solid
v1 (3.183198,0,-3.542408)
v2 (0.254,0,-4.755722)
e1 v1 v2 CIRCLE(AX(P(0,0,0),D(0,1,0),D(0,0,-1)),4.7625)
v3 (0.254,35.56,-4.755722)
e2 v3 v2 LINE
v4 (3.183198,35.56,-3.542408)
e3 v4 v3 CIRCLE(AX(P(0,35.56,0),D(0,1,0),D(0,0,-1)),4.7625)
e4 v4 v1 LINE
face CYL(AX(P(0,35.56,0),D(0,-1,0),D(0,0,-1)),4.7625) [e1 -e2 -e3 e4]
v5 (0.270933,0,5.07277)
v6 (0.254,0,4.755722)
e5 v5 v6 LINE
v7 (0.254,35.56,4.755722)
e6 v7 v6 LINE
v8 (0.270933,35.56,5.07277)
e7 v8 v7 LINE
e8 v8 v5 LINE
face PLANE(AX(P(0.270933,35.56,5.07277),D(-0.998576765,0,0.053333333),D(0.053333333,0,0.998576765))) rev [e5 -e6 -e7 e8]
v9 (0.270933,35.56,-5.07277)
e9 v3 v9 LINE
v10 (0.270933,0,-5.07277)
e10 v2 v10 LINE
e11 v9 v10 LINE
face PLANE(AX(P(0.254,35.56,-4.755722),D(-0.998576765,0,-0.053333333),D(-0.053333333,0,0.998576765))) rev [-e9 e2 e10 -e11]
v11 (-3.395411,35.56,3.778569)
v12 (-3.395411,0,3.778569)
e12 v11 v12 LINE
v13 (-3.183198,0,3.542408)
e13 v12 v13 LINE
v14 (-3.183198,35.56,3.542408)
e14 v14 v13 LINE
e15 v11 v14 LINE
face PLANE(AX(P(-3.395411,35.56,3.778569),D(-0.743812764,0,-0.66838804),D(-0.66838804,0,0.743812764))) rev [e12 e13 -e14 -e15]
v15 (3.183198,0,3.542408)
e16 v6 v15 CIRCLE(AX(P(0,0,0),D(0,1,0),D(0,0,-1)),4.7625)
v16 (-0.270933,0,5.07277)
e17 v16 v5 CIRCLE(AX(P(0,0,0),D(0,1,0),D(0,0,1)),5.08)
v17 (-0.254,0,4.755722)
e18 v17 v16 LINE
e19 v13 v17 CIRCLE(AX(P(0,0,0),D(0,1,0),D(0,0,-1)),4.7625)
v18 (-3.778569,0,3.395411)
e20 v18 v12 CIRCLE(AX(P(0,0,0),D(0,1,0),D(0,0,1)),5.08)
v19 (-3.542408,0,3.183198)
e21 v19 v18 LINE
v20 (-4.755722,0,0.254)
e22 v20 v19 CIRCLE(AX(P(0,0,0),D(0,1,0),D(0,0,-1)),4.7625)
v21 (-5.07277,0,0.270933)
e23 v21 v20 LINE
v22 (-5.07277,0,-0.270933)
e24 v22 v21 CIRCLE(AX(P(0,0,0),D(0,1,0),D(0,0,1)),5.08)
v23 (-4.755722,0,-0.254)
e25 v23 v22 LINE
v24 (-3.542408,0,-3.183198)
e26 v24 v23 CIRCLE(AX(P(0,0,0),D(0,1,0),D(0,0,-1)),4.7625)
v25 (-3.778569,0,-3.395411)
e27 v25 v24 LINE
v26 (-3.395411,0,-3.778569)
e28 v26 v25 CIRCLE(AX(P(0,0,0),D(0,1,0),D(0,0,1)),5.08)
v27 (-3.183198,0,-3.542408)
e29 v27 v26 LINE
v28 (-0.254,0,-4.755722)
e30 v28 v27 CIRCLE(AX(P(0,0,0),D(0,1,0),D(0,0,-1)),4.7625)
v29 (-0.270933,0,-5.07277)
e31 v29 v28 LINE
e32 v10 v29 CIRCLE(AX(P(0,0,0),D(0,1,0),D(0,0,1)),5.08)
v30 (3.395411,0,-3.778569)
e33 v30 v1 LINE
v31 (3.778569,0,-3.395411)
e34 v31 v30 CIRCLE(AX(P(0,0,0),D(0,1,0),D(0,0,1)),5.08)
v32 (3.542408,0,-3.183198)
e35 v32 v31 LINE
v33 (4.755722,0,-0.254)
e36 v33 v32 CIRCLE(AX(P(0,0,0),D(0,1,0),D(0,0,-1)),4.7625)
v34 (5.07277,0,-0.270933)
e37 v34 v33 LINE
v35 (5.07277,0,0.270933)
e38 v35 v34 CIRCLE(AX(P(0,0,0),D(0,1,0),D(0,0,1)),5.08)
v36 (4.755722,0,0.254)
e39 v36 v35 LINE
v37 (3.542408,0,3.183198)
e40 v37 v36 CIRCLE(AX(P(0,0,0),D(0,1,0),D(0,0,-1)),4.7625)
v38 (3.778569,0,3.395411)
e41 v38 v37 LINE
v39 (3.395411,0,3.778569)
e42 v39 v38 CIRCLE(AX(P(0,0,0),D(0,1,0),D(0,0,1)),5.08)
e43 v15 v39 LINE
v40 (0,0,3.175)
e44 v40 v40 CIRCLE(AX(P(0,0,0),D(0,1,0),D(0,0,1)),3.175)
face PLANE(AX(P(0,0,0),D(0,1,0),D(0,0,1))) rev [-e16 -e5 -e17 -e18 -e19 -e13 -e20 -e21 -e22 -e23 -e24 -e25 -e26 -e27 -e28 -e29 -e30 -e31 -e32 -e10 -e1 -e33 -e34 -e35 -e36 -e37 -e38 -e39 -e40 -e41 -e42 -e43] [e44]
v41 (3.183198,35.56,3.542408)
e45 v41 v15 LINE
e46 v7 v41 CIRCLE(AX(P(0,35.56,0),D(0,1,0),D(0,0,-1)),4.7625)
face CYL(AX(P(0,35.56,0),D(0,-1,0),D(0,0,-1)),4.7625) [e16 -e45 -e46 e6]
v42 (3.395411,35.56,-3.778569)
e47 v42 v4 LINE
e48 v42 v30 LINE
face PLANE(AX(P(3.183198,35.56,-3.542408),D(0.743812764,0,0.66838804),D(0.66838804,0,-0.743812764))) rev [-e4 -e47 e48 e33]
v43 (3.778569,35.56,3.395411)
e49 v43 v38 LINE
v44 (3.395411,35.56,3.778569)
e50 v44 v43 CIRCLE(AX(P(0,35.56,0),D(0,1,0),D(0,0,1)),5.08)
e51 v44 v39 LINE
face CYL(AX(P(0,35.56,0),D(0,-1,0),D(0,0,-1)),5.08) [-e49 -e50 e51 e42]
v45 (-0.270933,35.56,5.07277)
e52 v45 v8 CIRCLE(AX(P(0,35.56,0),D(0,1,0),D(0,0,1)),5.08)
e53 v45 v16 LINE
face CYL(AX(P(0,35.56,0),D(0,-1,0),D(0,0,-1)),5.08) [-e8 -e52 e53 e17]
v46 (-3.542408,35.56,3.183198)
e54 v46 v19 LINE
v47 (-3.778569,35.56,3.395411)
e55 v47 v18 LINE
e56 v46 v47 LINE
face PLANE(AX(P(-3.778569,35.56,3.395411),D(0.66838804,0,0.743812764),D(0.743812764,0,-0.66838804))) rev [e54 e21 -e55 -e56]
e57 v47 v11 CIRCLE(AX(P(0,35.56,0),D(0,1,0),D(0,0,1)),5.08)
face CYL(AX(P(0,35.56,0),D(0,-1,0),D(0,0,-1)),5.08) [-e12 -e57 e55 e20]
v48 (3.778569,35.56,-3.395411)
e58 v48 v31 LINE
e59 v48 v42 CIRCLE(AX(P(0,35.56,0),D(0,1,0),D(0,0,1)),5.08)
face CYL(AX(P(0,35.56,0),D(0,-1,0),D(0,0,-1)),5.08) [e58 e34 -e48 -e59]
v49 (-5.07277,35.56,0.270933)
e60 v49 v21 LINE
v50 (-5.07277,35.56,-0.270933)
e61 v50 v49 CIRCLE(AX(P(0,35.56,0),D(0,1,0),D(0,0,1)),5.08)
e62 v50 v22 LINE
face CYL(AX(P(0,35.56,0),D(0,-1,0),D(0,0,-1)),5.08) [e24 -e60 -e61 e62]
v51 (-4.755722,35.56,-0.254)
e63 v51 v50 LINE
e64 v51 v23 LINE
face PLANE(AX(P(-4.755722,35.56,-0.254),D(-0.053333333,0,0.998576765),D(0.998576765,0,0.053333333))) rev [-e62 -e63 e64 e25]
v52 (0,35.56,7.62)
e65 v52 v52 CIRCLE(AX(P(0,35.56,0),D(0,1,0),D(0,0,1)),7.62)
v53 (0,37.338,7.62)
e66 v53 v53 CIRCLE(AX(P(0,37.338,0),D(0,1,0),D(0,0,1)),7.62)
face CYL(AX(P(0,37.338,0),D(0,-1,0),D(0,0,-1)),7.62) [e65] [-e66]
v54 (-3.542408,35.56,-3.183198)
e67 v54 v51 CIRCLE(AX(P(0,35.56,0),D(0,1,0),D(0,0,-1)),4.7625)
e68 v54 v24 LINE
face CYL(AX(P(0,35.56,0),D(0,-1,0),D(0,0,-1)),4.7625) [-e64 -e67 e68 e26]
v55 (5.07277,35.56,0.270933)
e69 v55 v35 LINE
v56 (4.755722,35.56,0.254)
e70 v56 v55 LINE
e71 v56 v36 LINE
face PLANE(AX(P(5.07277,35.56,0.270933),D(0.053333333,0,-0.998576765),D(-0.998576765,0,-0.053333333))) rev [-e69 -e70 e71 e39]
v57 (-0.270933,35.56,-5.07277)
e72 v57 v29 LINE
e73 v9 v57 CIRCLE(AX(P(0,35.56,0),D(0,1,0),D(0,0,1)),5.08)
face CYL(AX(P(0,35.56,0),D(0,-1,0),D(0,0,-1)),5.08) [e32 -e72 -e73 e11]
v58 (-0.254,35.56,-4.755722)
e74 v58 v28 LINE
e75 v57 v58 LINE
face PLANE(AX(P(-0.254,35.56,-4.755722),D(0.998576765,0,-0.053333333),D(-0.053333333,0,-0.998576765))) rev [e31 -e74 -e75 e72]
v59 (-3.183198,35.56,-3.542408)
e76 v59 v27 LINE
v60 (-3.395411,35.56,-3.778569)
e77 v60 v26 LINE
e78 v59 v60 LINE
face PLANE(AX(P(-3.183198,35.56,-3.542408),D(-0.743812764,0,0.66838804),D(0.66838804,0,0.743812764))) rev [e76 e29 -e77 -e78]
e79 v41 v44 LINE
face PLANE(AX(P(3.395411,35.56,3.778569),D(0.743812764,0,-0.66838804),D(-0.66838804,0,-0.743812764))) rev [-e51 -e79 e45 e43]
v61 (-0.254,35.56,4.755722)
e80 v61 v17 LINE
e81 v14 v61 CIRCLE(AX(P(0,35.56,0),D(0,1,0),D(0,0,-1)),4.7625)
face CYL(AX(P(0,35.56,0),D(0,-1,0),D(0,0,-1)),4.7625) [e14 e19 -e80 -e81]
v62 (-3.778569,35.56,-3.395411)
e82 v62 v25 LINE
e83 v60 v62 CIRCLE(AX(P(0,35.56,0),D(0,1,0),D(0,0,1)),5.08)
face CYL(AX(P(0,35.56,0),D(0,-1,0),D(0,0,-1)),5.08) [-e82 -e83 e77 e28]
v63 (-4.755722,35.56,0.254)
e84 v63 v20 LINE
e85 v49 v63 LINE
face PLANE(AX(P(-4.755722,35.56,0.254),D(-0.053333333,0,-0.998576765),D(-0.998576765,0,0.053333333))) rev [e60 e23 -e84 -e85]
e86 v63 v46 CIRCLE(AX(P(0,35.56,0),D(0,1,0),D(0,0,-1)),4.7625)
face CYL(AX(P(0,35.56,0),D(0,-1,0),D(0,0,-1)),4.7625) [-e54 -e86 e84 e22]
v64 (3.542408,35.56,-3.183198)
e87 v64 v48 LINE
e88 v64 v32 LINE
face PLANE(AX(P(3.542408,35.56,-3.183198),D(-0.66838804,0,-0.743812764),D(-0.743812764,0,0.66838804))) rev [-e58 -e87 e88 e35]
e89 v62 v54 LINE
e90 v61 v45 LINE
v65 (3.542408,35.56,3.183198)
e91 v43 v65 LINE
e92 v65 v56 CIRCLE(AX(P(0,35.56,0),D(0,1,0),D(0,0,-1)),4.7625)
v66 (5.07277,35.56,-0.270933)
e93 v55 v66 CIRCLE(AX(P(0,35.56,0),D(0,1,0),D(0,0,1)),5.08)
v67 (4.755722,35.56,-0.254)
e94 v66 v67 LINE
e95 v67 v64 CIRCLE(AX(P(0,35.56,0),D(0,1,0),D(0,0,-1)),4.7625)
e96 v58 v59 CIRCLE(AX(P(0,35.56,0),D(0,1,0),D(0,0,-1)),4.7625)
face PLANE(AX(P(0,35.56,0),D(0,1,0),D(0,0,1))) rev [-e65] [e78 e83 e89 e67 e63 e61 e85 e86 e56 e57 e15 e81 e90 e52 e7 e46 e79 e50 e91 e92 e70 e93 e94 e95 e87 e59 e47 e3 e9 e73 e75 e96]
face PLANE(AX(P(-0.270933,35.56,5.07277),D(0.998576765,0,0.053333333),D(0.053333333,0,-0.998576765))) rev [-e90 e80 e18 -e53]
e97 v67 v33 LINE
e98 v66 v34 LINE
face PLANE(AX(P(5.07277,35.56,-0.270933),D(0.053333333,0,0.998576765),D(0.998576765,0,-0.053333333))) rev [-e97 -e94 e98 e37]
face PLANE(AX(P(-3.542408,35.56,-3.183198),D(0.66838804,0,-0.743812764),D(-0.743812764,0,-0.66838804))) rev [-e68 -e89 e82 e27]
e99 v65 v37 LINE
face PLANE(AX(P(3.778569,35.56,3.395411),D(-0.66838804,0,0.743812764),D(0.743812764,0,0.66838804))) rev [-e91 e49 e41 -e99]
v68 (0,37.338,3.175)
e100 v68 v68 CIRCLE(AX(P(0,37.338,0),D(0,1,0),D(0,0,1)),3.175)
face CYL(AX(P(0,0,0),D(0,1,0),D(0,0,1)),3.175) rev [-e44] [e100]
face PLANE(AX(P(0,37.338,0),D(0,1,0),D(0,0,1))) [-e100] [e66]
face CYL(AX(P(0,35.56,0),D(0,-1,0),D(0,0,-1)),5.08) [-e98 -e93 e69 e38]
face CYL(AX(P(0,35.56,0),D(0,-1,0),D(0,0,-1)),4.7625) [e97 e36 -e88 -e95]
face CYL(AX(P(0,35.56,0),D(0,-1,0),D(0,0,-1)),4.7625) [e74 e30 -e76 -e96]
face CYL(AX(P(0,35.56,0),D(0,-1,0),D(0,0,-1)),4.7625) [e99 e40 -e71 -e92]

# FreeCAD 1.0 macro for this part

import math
import FreeCAD as App
import Part
import Sketcher

V = App.Vector
Q = App.Units.Quantity

doc = App.newDocument("Part")
body = doc.addObject("PartDesign::Body", "Body")

sketch1 = body.newObject("Sketcher::SketchObject", "Sketch")
sketch1.AttachmentSupport = (doc.getObject("XZ_Plane"), [""])
sketch1.MapMode = "FlatFace"
sketch1.addGeometry(Part.Circle(V(0, 0, 0), V(0, 0, 1), 5.08), False)
sketch1.addConstraint(Sketcher.Constraint("Coincident", 0, 3, -1, 1))
sketch1.addConstraint(Sketcher.Constraint("Diameter", 0, Q("0.4 in")))
pad1 = body.newObject("PartDesign::Pad", "Pad")
pad1.Profile = sketch1
pad1.Length = Q("1.4 in")
pad1.Reversed = True

sketch2 = body.newObject("Sketcher::SketchObject", "Sketch001")
sketch2.AttachmentSupport = (doc.getObject("XZ_Plane"), [""])
sketch2.MapMode = "FlatFace"
sketch2.AttachmentOffset = App.Placement(V(0, 0, -1.4 * 25.4), App.Rotation())
sketch2.addGeometry(Part.Circle(V(0, 0, 0), V(0, 0, 1), 7.62), False)
sketch2.addConstraint(Sketcher.Constraint("Coincident", 0, 3, -1, 1))
sketch2.addConstraint(Sketcher.Constraint("Diameter", 0, Q("0.6 in")))
pad2 = body.newObject("PartDesign::Pad", "Pad001")
pad2.Profile = sketch2
pad2.Length = Q("0.07 in")
pad2.Reversed = True

sketch3 = body.newObject("Sketcher::SketchObject", "Sketch002")
sketch3.AttachmentSupport = (doc.getObject("XZ_Plane"), [""])
sketch3.MapMode = "FlatFace"
sketch3.AttachmentOffset = App.Placement(V(0, 0, -1.47 * 25.4), App.Rotation())
sketch3.addGeometry(Part.Circle(V(0, 0, 0), V(0, 0, 1), 3.175), False)
sketch3.addConstraint(Sketcher.Constraint("Coincident", 0, 3, -1, 1))
sketch3.addConstraint(Sketcher.Constraint("Diameter", 0, Q("0.25 in")))
pocket1 = body.newObject("PartDesign::Pocket", "Pocket")
pocket1.Profile = sketch3
pocket1.Type = "ThroughAll"
pocket1.Reversed = True

sketch4 = body.newObject("Sketcher::SketchObject", "Sketch003")
sketch4.AttachmentSupport = (doc.getObject("XZ_Plane"), [""])
sketch4.MapMode = "FlatFace"
sketch4.addGeometry(Part.LineSegment(V(-3.542408, 3.183198, 0), V(-3.778569, 3.395411, 0)), False)
sketch4.addGeometry(Part.ArcOfCircle(Part.Circle(V(0, 0, 0), V(0, 0, 1), 5.08), math.radians(138.057225), math.radians(176.942775)), False)
sketch4.addGeometry(Part.LineSegment(V(-5.07277, 0.270933, 0), V(-4.755722, 0.254, 0)), False)
sketch4.addGeometry(Part.ArcOfCircle(Part.Circle(V(0, 0, 0), V(0, 0, 1), 4.7625), math.radians(138.057225), math.radians(176.942775)), False)
sketch4.addGeometry(Part.LineSegment(V(-0.254, 4.755722, 0), V(-0.270933, 5.07277, 0)), False)
sketch4.addGeometry(Part.ArcOfCircle(Part.Circle(V(0, 0, 0), V(0, 0, 1), 5.08), math.radians(93.057225), math.radians(131.942775)), False)
sketch4.addGeometry(Part.LineSegment(V(-3.395411, 3.778569, 0), V(-3.183198, 3.542408, 0)), False)
sketch4.addGeometry(Part.ArcOfCircle(Part.Circle(V(0, 0, 0), V(0, 0, 1), 4.7625), math.radians(93.057225), math.radians(131.942775)), False)
sketch4.addGeometry(Part.LineSegment(V(0.270933, 5.07277, 0), V(0.254, 4.755722, 0)), False)
sketch4.addGeometry(Part.ArcOfCircle(Part.Circle(V(0, 0, 0), V(0, 0, 1), 4.7625), math.radians(48.057225), math.radians(86.942775)), False)
sketch4.addGeometry(Part.LineSegment(V(3.183198, 3.542408, 0), V(3.395411, 3.778569, 0)), False)
sketch4.addGeometry(Part.ArcOfCircle(Part.Circle(V(0, 0, 0), V(0, 0, 1), 5.08), math.radians(48.057225), math.radians(86.942775)), False)
sketch4.addGeometry(Part.LineSegment(V(3.778569, 3.395411, 0), V(3.542408, 3.183198, 0)), False)
sketch4.addGeometry(Part.ArcOfCircle(Part.Circle(V(0, 0, 0), V(0, 0, 1), 4.7625), math.radians(3.057225), math.radians(41.942775)), False)
sketch4.addGeometry(Part.LineSegment(V(4.755722, 0.254, 0), V(5.07277, 0.270933, 0)), False)
sketch4.addGeometry(Part.ArcOfCircle(Part.Circle(V(0, 0, 0), V(0, 0, 1), 5.08), math.radians(3.057225), math.radians(41.942775)), False)
sketch4.addGeometry(Part.LineSegment(V(5.07277, -0.270933, 0), V(4.755722, -0.254, 0)), False)
sketch4.addGeometry(Part.ArcOfCircle(Part.Circle(V(0, 0, 0), V(0, 0, 1), 4.7625), math.radians(-41.942775), math.radians(-3.057225)), False)
sketch4.addGeometry(Part.LineSegment(V(3.542408, -3.183198, 0), V(3.778569, -3.395411, 0)), False)
sketch4.addGeometry(Part.ArcOfCircle(Part.Circle(V(0, 0, 0), V(0, 0, 1), 5.08), math.radians(-41.942775), math.radians(-3.057225)), False)
sketch4.addGeometry(Part.LineSegment(V(3.395411, -3.778569, 0), V(3.183198, -3.542408, 0)), False)
sketch4.addGeometry(Part.ArcOfCircle(Part.Circle(V(0, 0, 0), V(0, 0, 1), 4.7625), math.radians(-86.942775), math.radians(-48.057225)), False)
sketch4.addGeometry(Part.LineSegment(V(0.254, -4.755722, 0), V(0.270933, -5.07277, 0)), False)
sketch4.addGeometry(Part.ArcOfCircle(Part.Circle(V(0, 0, 0), V(0, 0, 1), 5.08), math.radians(-86.942775), math.radians(-48.057225)), False)
sketch4.addGeometry(Part.LineSegment(V(-4.755722, -0.254, 0), V(-5.07277, -0.270933, 0)), False)
sketch4.addGeometry(Part.ArcOfCircle(Part.Circle(V(0, 0, 0), V(0, 0, 1), 5.08), math.radians(-176.942775), math.radians(-138.057225)), False)
sketch4.addGeometry(Part.LineSegment(V(-3.778569, -3.395411, 0), V(-3.542408, -3.183198, 0)), False)
sketch4.addGeometry(Part.ArcOfCircle(Part.Circle(V(0, 0, 0), V(0, 0, 1), 4.7625), math.radians(-176.942775), math.radians(-138.057225)), False)
sketch4.addGeometry(Part.LineSegment(V(-3.183198, -3.542408, 0), V(-3.395411, -3.778569, 0)), False)
sketch4.addGeometry(Part.ArcOfCircle(Part.Circle(V(0, 0, 0), V(0, 0, 1), 5.08), math.radians(-131.942775), math.radians(-93.057225)), False)
sketch4.addGeometry(Part.LineSegment(V(-0.270933, -5.07277, 0), V(-0.254, -4.755722, 0)), False)
sketch4.addGeometry(Part.ArcOfCircle(Part.Circle(V(0, 0, 0), V(0, 0, 1), 4.7625), math.radians(-131.942775), math.radians(-93.057225)), False)
sketch4.addConstraint(Sketcher.Constraint("Coincident", 0, 2, 1, 1))
sketch4.addConstraint(Sketcher.Constraint("Coincident", 1, 2, 2, 1))
sketch4.addConstraint(Sketcher.Constraint("Coincident", 2, 2, 3, 2))
sketch4.addConstraint(Sketcher.Constraint("Coincident", 3, 1, 0, 1))
sketch4.addConstraint(Sketcher.Constraint("Coincident", 4, 2, 5, 1))
sketch4.addConstraint(Sketcher.Constraint("Coincident", 5, 2, 6, 1))
sketch4.addConstraint(Sketcher.Constraint("Coincident", 6, 2, 7, 2))
sketch4.addConstraint(Sketcher.Constraint("Coincident", 7, 1, 4, 1))
sketch4.addConstraint(Sketcher.Constraint("Coincident", 8, 2, 9, 2))
sketch4.addConstraint(Sketcher.Constraint("Coincident", 9, 1, 10, 1))
sketch4.addConstraint(Sketcher.Constraint("Coincident", 10, 2, 11, 1))
sketch4.addConstraint(Sketcher.Constraint("Coincident", 11, 2, 8, 1))
sketch4.addConstraint(Sketcher.Constraint("Coincident", 12, 2, 13, 2))
sketch4.addConstraint(Sketcher.Constraint("Coincident", 13, 1, 14, 1))
sketch4.addConstraint(Sketcher.Constraint("Coincident", 14, 2, 15, 1))
sketch4.addConstraint(Sketcher.Constraint("Coincident", 15, 2, 12, 1))
sketch4.addConstraint(Sketcher.Constraint("Coincident", 16, 2, 17, 2))
sketch4.addConstraint(Sketcher.Constraint("Coincident", 17, 1, 18, 1))
sketch4.addConstraint(Sketcher.Constraint("Coincident", 18, 2, 19, 1))
sketch4.addConstraint(Sketcher.Constraint("Coincident", 19, 2, 16, 1))
sketch4.addConstraint(Sketcher.Constraint("Coincident", 20, 2, 21, 2))
sketch4.addConstraint(Sketcher.Constraint("Coincident", 21, 1, 22, 1))
sketch4.addConstraint(Sketcher.Constraint("Coincident", 22, 2, 23, 1))
sketch4.addConstraint(Sketcher.Constraint("Coincident", 23, 2, 20, 1))
sketch4.addConstraint(Sketcher.Constraint("Coincident", 24, 2, 25, 1))
sketch4.addConstraint(Sketcher.Constraint("Coincident", 25, 2, 26, 1))
sketch4.addConstraint(Sketcher.Constraint("Coincident", 26, 2, 27, 2))
sketch4.addConstraint(Sketcher.Constraint("Coincident", 27, 1, 24, 1))
sketch4.addConstraint(Sketcher.Constraint("Coincident", 28, 2, 29, 1))
sketch4.addConstraint(Sketcher.Constraint("Coincident", 29, 2, 30, 1))
sketch4.addConstraint(Sketcher.Constraint("Coincident", 30, 2, 31, 2))
sketch4.addConstraint(Sketcher.Constraint("Coincident", 31, 1, 28, 1))
sketch4.addConstraint(Sketcher.Constraint("Coincident", 1, 3, -1, 1))
sketch4.addConstraint(Sketcher.Constraint("Coincident", 3, 3, -1, 1))
sketch4.addConstraint(Sketcher.Constraint("Coincident", 5, 3, -1, 1))
sketch4.addConstraint(Sketcher.Constraint("Coincident", 7, 3, -1, 1))
sketch4.addConstraint(Sketcher.Constraint("Coincident", 9, 3, -1, 1))
sketch4.addConstraint(Sketcher.Constraint("Coincident", 11, 3, -1, 1))
sketch4.addConstraint(Sketcher.Constraint("Coincident", 13, 3, -1, 1))
sketch4.addConstraint(Sketcher.Constraint("Coincident", 15, 3, -1, 1))
sketch4.addConstraint(Sketcher.Constraint("Coincident", 17, 3, -1, 1))
sketch4.addConstraint(Sketcher.Constraint("Coincident", 19, 3, -1, 1))
sketch4.addConstraint(Sketcher.Constraint("Coincident", 21, 3, -1, 1))
sketch4.addConstraint(Sketcher.Constraint("Coincident", 23, 3, -1, 1))
sketch4.addConstraint(Sketcher.Constraint("Coincident", 25, 3, -1, 1))
sketch4.addConstraint(Sketcher.Constraint("Coincident", 27, 3, -1, 1))
sketch4.addConstraint(Sketcher.Constraint("Coincident", 29, 3, -1, 1))
sketch4.addConstraint(Sketcher.Constraint("Coincident", 31, 3, -1, 1))
sketch4.addConstraint(Sketcher.Constraint("Equal", 1, 5))
sketch4.addConstraint(Sketcher.Constraint("Equal", 3, 7))
sketch4.addConstraint(Sketcher.Constraint("Equal", 7, 9))
sketch4.addConstraint(Sketcher.Constraint("Equal", 5, 11))
sketch4.addConstraint(Sketcher.Constraint("Equal", 9, 13))
sketch4.addConstraint(Sketcher.Constraint("Equal", 11, 15))
sketch4.addConstraint(Sketcher.Constraint("Equal", 13, 17))
sketch4.addConstraint(Sketcher.Constraint("Equal", 15, 19))
sketch4.addConstraint(Sketcher.Constraint("Equal", 17, 21))
sketch4.addConstraint(Sketcher.Constraint("Equal", 19, 23))
sketch4.addConstraint(Sketcher.Constraint("Equal", 23, 25))
sketch4.addConstraint(Sketcher.Constraint("Equal", 21, 27))
sketch4.addConstraint(Sketcher.Constraint("Equal", 25, 29))
sketch4.addConstraint(Sketcher.Constraint("Equal", 27, 31))
sketch4.addConstraint(Sketcher.Constraint("Perpendicular", 2, 8))
sketch4.addConstraint(Sketcher.Constraint("Perpendicular", 0, 10))
sketch4.addConstraint(Sketcher.Constraint("Perpendicular", 6, 12))
sketch4.addConstraint(Sketcher.Constraint("Perpendicular", 4, 14))
sketch4.addConstraint(Sketcher.Constraint("Perpendicular", 8, 16))
sketch4.addConstraint(Sketcher.Constraint("Perpendicular", 10, 18))
sketch4.addConstraint(Sketcher.Constraint("Perpendicular", 12, 20))
sketch4.addConstraint(Sketcher.Constraint("Perpendicular", 14, 22))
sketch4.addConstraint(Sketcher.Constraint("Perpendicular", 22, 24))
sketch4.addConstraint(Sketcher.Constraint("Perpendicular", 20, 26))
sketch4.addConstraint(Sketcher.Constraint("Perpendicular", 18, 28))
sketch4.addConstraint(Sketcher.Constraint("Perpendicular", 16, 30))
sketch4.addConstraint(Sketcher.Constraint("Horizontal", 7, 1, 8, 2))
sketch4.addConstraint(Sketcher.Constraint("Horizontal", 6, 2, 9, 1))
sketch4.addConstraint(Sketcher.Constraint("Horizontal", 5, 2, 10, 2))
sketch4.addConstraint(Sketcher.Constraint("Horizontal", 4, 2, 11, 2))
sketch4.addConstraint(Sketcher.Constraint("Horizontal", 3, 1, 12, 2))
sketch4.addConstraint(Sketcher.Constraint("Horizontal", 2, 2, 13, 1))
sketch4.addConstraint(Sketcher.Constraint("Horizontal", 19, 2, 24, 2))
sketch4.addConstraint(Sketcher.Constraint("Horizontal", 18, 2, 25, 2))
sketch4.addConstraint(Sketcher.Constraint("Horizontal", 23, 2, 28, 2))
sketch4.addConstraint(Sketcher.Constraint("Horizontal", 22, 2, 29, 2))
sketch4.addConstraint(Sketcher.Constraint("Vertical", 13, 1, 16, 2))
sketch4.addConstraint(Sketcher.Constraint("Vertical", 12, 2, 17, 1))
sketch4.addConstraint(Sketcher.Constraint("Vertical", 9, 1, 20, 2))
sketch4.addConstraint(Sketcher.Constraint("Vertical", 8, 2, 21, 1))
sketch4.addConstraint(Sketcher.Constraint("Radius", 1, Q("0.2 in")))
sketch4.addConstraint(Sketcher.Constraint("Radius", 3, Q("0.1875 in")))
sketch4.addConstraint(Sketcher.Constraint("DistanceY", -1, 1, 2, 2, Q("0.01 in")))
sketch4.addConstraint(Sketcher.Constraint("DistanceX", 7, 1, -1, 1, Q("0.01 in")))
sketch4.addConstraint(Sketcher.Constraint("DistanceY", -1, 1, 3, 1, 3.183198))
sketch4.addConstraint(Sketcher.Constraint("DistanceX", 6, 2, -1, 1, 3.183198))
sketch4.addConstraint(Sketcher.Constraint("DistanceX", 1, 2, 0, 2, 1.294201))
sketch4.addConstraint(Sketcher.Constraint("DistanceX", 0, 2, -1, 1, 3.778569))
pocket2 = body.newObject("PartDesign::Pocket", "Pocket001")
pocket2.Profile = sketch4
pocket2.Length = Q("1.4 in")

doc.recompute()
